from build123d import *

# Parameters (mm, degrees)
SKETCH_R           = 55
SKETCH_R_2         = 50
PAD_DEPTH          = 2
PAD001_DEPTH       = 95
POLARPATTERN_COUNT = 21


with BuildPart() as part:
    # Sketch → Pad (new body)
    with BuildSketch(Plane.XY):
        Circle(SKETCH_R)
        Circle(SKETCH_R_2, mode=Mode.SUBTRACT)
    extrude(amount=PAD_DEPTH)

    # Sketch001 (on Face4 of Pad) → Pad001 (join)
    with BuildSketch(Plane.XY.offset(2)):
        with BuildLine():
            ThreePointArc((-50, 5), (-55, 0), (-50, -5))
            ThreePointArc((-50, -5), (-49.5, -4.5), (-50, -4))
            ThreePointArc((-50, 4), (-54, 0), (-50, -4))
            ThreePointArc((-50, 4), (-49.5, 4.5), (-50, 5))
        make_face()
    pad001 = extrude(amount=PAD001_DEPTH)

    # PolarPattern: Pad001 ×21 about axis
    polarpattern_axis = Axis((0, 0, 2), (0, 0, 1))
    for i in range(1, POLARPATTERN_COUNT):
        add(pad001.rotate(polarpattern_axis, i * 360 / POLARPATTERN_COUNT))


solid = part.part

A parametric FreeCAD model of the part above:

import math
import FreeCAD as App
import Part
import Sketcher
from FreeCAD import Vector

doc = App.newDocument("Part")
body = doc.addObject("PartDesign::Body", "Body")

# Sketch on XY plane
sketch1 = body.newObject("Sketcher::SketchObject", "Sketch")
sketch1.AttachmentSupport = (doc.getObject("XY_Plane"), [""])
sketch1.MapMode = "FlatFace"
sketch1.addGeometry([
    Part.Circle(Vector(0, 0, 0), Vector(0, 0, 1), 55),
    Part.Circle(Vector(0, 0, 0), Vector(0, 0, 1), 50),
], False)
sketch1.addConstraint([
    Sketcher.Constraint("Coincident", 0, 3, -1, 1),
    Sketcher.Constraint("Coincident", 1, 3, -1, 1),
    Sketcher.Constraint("Diameter", 0, 110.0),
    Sketcher.Constraint("Diameter", 1, 100.0),
])
pad1 = body.newObject("PartDesign::Pad", "Pad")
pad1.Profile = sketch1
pad1.Length = 2

# Sketch on XY plane
sketch2 = body.newObject("Sketcher::SketchObject", "Sketch001")
sketch2.AttachmentSupport = (doc.getObject("XY_Plane"), [""])
sketch2.MapMode = "FlatFace"
sketch2.AttachmentOffset = App.Placement(Vector(0, 0, 2), App.Rotation())
sketch2.addGeometry([
    Part.ArcOfCircle(Part.Circle(Vector(-50, 0, 0), Vector(0, 0, 1), 5), math.radians(90), math.radians(270)),
    Part.ArcOfCircle(Part.Circle(Vector(-50, -4.5, 0), Vector(0, 0, 1), 0.5), math.radians(-90), math.radians(90)),
    Part.ArcOfCircle(Part.Circle(Vector(-50, 0, 0), Vector(0, 0, 1), 4), math.radians(90), math.radians(270)),
    Part.ArcOfCircle(Part.Circle(Vector(-50, 4.5, 0), Vector(0, 0, 1), 0.5), math.radians(-90), math.radians(90)),
], False)
sketch2.addConstraint([
    Sketcher.Constraint("Tangent", 0, 2, 1, 1),
    Sketcher.Constraint("Tangent", 1, 2, 2, 2),
    Sketcher.Constraint("Tangent", 2, 1, 3, 1),
    Sketcher.Constraint("Tangent", 3, 2, 0, 1),
    Sketcher.Constraint("Coincident", 2, 3, 0, 3),
    Sketcher.Constraint("Symmetric", 1, 3, 3, 3, -1),
    Sketcher.Constraint("Vertical", 0, 3, 1, 3),
    Sketcher.Constraint("Radius", 0, 5.0),
    Sketcher.Constraint("Radius", 2, 4.0),
    Sketcher.Constraint("DistanceX", 0, 3, -1, 1, 50.0),
])
pad2 = body.newObject("PartDesign::Pad", "Pad001")
pad2.Profile = sketch2
pad2.Length = 95
doc.recompute()

polarpattern = body.newObject("PartDesign::PolarPattern", "PolarPattern")
polarpattern.Originals = [pad2]
polarpattern.Axis = (doc.getObject("Z_Axis"), [""])
polarpattern.Angle = 360
polarpattern.Occurrences = 21
body.Tip = polarpattern

doc.recompute()
